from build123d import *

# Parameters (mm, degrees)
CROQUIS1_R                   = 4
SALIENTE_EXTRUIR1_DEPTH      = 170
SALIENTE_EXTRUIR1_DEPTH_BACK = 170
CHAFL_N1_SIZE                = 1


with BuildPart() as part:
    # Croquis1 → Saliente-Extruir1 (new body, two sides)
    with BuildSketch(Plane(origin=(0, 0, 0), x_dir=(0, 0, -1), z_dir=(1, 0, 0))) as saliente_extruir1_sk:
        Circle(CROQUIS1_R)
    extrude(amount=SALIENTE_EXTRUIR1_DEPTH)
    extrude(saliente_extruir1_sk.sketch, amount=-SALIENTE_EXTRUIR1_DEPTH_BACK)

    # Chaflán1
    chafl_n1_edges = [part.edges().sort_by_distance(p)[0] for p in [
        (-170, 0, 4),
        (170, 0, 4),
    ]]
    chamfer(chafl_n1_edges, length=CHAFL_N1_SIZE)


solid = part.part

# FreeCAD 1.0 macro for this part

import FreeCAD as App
import Part
import Sketcher

V = App.Vector


def edges_at(feature, points):
    """Names of the edges that pass closest to the given points."""
    edges = feature.Shape.Edges
    near = lambda p: min(range(len(edges)), key=lambda i: edges[i].distToShape(Part.Vertex(*p))[0])
    return sorted({f"Edge{near(p) + 1}" for p in points})

doc = App.newDocument("Part")
body = doc.addObject("PartDesign::Body", "Body")

sketch1 = body.newObject("Sketcher::SketchObject", "Sketch")
sketch1.AttachmentSupport = (doc.getObject("YZ_Plane"), [""])
sketch1.MapMode = "FlatFace"
sketch1.addGeometry(Part.Circle(V(0, 0, 0), V(0, 0, 1), 4), False)
sketch1.addConstraint([
    Sketcher.Constraint("Coincident", 0, 3, -1, 1),
    Sketcher.Constraint("Diameter", 0, 8.0),
])
pad1 = body.newObject("PartDesign::Pad", "Pad")
pad1.Profile = sketch1
pad1.Type = "TwoLengths"
pad1.Length = 170
pad1.Length2 = 170
doc.recompute()

chamfer = body.newObject("PartDesign::Chamfer", "Chamfer")
chamfer.Base = (pad1, edges_at(pad1, [(-170, 0, 4), (170, 0, 4)]))
chamfer.Size = 1

doc.recompute()
